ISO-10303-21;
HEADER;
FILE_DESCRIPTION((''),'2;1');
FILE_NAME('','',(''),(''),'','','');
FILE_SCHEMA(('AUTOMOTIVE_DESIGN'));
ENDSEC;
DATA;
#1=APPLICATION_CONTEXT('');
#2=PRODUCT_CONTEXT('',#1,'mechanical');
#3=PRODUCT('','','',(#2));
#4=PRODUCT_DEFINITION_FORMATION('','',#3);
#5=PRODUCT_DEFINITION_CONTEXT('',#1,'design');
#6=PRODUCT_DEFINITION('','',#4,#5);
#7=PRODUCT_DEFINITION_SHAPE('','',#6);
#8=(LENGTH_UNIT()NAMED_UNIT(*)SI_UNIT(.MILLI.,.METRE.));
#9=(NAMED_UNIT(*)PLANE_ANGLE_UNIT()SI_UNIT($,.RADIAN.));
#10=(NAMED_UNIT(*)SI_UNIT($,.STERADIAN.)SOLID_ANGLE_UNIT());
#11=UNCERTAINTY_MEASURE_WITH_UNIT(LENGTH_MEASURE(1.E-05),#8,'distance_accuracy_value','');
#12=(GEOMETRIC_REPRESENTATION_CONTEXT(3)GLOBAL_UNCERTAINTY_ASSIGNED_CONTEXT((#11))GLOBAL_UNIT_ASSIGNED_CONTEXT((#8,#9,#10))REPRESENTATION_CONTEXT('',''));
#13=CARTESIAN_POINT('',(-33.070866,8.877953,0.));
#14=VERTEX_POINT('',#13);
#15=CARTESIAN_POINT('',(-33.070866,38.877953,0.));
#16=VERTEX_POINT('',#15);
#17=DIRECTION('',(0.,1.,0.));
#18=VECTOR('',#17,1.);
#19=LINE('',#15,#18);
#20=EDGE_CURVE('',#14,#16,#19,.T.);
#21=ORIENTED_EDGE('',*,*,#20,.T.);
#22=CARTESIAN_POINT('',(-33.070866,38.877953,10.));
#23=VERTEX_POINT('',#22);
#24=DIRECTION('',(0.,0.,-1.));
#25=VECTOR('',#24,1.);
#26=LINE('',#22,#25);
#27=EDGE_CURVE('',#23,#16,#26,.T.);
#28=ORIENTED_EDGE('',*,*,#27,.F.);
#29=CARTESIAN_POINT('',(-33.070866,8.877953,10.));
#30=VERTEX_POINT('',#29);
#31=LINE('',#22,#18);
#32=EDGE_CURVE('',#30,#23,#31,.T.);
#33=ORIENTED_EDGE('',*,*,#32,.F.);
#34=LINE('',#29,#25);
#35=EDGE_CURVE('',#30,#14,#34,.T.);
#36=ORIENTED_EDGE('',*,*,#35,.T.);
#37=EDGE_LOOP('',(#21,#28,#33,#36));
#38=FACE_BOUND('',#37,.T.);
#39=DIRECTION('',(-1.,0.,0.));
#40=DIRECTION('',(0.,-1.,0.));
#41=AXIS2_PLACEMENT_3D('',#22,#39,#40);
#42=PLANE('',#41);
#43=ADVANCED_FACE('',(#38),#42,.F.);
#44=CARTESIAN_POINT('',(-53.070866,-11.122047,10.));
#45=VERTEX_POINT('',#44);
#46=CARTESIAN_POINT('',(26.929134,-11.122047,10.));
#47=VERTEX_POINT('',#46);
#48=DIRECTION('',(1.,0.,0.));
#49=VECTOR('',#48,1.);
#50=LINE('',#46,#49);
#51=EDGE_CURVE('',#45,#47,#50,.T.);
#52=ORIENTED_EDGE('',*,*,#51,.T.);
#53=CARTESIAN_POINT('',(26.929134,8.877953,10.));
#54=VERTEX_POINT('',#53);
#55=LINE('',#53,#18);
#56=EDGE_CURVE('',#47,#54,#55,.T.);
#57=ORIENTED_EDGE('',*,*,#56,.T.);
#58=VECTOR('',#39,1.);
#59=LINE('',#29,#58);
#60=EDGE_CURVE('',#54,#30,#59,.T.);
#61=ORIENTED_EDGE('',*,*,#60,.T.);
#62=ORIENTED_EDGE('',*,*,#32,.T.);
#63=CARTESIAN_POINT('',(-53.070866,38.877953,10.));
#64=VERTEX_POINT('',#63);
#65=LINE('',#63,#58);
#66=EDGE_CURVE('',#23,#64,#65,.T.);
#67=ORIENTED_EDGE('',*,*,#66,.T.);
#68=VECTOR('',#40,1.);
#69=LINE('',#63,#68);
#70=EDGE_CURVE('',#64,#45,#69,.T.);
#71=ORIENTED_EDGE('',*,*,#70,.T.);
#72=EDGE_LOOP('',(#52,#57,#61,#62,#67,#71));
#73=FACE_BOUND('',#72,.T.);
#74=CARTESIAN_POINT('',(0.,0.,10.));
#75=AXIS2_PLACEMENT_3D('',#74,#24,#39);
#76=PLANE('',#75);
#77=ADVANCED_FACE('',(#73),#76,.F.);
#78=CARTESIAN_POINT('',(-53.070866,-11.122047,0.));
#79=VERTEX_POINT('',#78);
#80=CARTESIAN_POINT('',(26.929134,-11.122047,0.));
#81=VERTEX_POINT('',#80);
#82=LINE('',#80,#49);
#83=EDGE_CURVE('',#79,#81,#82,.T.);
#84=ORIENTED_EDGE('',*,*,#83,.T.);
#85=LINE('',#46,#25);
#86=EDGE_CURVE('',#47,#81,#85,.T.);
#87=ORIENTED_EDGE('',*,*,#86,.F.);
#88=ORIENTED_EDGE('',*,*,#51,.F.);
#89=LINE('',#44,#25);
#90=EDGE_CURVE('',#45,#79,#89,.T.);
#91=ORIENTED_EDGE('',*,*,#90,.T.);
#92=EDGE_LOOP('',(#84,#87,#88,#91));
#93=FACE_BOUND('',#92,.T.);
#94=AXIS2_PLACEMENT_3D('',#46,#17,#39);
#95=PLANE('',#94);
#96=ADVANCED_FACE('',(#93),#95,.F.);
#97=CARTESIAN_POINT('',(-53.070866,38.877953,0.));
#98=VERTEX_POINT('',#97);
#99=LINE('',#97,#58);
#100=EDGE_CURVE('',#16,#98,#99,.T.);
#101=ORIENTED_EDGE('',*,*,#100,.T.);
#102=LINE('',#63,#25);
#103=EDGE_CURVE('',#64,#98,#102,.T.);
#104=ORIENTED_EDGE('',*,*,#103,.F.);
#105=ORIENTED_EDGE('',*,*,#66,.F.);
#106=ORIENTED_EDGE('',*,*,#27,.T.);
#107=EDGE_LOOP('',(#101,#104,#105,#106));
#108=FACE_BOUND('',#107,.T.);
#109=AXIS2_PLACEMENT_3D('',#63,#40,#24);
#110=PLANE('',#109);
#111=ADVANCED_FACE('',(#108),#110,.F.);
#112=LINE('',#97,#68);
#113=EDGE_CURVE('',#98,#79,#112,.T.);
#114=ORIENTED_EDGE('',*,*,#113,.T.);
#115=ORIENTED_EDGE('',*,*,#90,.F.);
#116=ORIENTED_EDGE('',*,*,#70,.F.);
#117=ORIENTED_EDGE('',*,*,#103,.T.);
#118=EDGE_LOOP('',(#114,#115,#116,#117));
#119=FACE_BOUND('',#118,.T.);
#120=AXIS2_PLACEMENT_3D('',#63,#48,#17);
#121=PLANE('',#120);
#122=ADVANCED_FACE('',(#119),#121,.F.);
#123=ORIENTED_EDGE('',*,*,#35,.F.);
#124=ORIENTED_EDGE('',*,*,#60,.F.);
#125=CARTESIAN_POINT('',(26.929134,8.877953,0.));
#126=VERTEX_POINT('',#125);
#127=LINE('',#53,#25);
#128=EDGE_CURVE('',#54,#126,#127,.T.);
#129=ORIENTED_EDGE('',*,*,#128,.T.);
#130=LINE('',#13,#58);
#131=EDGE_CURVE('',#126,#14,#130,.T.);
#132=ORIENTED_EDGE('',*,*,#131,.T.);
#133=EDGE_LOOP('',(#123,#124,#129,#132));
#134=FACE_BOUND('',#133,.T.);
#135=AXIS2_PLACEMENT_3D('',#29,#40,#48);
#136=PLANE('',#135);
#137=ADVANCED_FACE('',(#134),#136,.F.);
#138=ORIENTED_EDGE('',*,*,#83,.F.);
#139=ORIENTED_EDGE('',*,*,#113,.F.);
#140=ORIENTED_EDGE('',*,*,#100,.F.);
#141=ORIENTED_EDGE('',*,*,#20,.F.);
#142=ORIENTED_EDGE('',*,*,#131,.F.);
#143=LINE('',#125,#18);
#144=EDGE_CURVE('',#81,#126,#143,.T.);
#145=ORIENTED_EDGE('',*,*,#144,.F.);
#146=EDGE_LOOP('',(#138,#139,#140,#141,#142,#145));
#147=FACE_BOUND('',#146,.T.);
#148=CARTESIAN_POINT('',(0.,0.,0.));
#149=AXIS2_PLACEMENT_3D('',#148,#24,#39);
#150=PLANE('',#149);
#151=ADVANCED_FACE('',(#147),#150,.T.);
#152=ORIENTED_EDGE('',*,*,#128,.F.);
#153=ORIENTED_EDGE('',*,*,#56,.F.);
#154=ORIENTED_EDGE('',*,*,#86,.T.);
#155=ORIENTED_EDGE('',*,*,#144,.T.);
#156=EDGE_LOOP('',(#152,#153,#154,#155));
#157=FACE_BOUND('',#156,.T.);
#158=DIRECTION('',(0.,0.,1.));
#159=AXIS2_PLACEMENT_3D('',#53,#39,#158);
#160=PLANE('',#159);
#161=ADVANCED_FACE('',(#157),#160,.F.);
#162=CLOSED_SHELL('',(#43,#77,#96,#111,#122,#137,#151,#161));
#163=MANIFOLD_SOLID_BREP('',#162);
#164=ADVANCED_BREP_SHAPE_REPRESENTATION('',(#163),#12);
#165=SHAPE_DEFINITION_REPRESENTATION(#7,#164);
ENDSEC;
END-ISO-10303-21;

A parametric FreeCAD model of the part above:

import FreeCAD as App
import Part
import Sketcher

V = App.Vector


def add_polygon(sketch, points):
    """Adds a closed chain of lines whose ends are joined by coincident constraints."""
    first, n = sketch.GeometryCount, len(points)
    for a, b in zip(points, points[1:] + points[:1]):
        sketch.addGeometry(Part.LineSegment(App.Vector(*a, 0), App.Vector(*b, 0)), False)
    for i in range(n):
        sketch.addConstraint(Sketcher.Constraint("Coincident", first + i, 2, first + (i + 1) % n, 1))

doc = App.newDocument("Part")
body = doc.addObject("PartDesign::Body", "Body")

sketch1 = body.newObject("Sketcher::SketchObject", "Sketch")
sketch1.AttachmentSupport = (doc.getObject("XY_Plane"), [""])
sketch1.MapMode = "FlatFace"
add_polygon(sketch1, [(-53, 39), (-53, -11), (27, -11), (27, 9), (-33, 9), (-33, 39)])
sketch1.addConstraint([
    Sketcher.Constraint("Vertical", 0),
    Sketcher.Constraint("Horizontal", 1),
    Sketcher.Constraint("Vertical", 2),
    Sketcher.Constraint("Horizontal", 3),
    Sketcher.Constraint("Vertical", 4),
    Sketcher.Constraint("Horizontal", 5),
    Sketcher.Constraint("Equal", 5, 2),
    Sketcher.Constraint("DistanceX", 1, 1, 1, 2, 80.0),
    Sketcher.Constraint("DistanceX", 3, 2, 3, 1, 60.0),
    Sketcher.Constraint("DistanceY", 0, 2, 0, 1, 50.0),
    Sketcher.Constraint("DistanceX", 0, 2, -1, 1, 53.070866),
    Sketcher.Constraint("DistanceY", 0, 2, -1, 1, 11.122047),
])
pad1 = body.newObject("PartDesign::Pad", "Pad")
pad1.Profile = sketch1
pad1.Length = 10

doc.recompute()
